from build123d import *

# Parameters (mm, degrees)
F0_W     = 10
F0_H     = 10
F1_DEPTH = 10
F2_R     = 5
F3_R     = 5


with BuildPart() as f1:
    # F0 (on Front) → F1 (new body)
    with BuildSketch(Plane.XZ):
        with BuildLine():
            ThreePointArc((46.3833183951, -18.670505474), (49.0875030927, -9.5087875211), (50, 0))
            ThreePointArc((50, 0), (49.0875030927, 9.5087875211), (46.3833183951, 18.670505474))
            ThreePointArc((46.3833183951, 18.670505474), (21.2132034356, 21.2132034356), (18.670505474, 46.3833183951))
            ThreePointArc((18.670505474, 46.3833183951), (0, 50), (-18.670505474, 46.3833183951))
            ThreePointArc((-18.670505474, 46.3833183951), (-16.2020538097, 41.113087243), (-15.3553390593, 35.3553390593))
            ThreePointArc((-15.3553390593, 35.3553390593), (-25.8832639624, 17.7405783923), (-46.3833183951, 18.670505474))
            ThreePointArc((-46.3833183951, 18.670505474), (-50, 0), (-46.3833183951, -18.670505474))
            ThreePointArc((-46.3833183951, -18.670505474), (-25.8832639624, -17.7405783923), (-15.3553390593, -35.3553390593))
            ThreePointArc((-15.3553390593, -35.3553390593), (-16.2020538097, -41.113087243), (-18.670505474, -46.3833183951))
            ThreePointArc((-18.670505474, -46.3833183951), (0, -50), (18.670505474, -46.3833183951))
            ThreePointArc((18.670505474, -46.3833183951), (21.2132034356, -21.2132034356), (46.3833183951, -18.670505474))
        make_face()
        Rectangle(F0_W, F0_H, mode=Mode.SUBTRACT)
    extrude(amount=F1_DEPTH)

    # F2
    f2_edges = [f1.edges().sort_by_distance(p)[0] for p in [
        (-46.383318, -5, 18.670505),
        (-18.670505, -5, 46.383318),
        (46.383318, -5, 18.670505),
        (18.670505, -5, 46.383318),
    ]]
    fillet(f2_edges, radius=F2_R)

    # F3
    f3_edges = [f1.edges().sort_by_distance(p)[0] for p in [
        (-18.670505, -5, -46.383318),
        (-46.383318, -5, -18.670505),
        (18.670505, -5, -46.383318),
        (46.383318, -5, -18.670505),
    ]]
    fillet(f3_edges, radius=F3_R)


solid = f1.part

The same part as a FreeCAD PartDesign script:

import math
import FreeCAD as App
import Part
import Sketcher

V = App.Vector


def edges_at(feature, points):
    """Names of the edges that pass closest to the given points."""
    edges = feature.Shape.Edges
    near = lambda p: min(range(len(edges)), key=lambda i: edges[i].distToShape(Part.Vertex(*p))[0])
    return sorted({f"Edge{near(p) + 1}" for p in points})

doc = App.newDocument("Part")
body = doc.addObject("PartDesign::Body", "Body")

sketch1 = body.newObject("Sketcher::SketchObject", "Sketch")
sketch1.AttachmentSupport = (doc.getObject("XZ_Plane"), [""])
sketch1.MapMode = "FlatFace"
sketch1.addGeometry(Part.ArcOfCircle(Part.Circle(V(0, 0, 0), V(0, 0, 1), 50), math.radians(-21.926082), math.radians(0)), False)
sketch1.addGeometry(Part.ArcOfCircle(Part.Circle(V(0, 0, 0), V(0, 0, 1), 50), math.radians(0), math.radians(21.926082)), False)
sketch1.addGeometry(Part.ArcOfCircle(Part.Circle(V(35.355339, 35.355339, 0), V(0, 0, 1), 20), math.radians(146.536959), math.radians(303.463041)), False)
sketch1.addGeometry(Part.ArcOfCircle(Part.Circle(V(0, 0, 0), V(0, 0, 1), 50), math.radians(68.073918), math.radians(111.926082)), False)
sketch1.addGeometry(Part.ArcOfCircle(Part.Circle(V(-35.355339, 35.355339, 0), V(0, 0, 1), 20), math.radians(0), math.radians(33.463041)), False)
sketch1.addGeometry(Part.ArcOfCircle(Part.Circle(V(-35.355339, 35.355339, 0), V(0, 0, 1), 20), math.radians(-123.463041), math.radians(0)), False)
sketch1.addGeometry(Part.ArcOfCircle(Part.Circle(V(0, 0, 0), V(0, 0, 1), 50), math.radians(158.073918), math.radians(201.926082)), False)
sketch1.addGeometry(Part.ArcOfCircle(Part.Circle(V(-35.355339, -35.355339, 0), V(0, 0, 1), 20), math.radians(0), math.radians(123.463041)), False)
sketch1.addGeometry(Part.ArcOfCircle(Part.Circle(V(-35.355339, -35.355339, 0), V(0, 0, 1), 20), math.radians(-33.463041), math.radians(0)), False)
sketch1.addGeometry(Part.ArcOfCircle(Part.Circle(V(0, 0, 0), V(0, 0, 1), 50), math.radians(-111.926082), math.radians(-68.073918)), False)
sketch1.addGeometry(Part.ArcOfCircle(Part.Circle(V(35.355339, -35.355339, 0), V(0, 0, 1), 20), math.radians(56.536959), math.radians(213.463041)), False)
sketch1.addGeometry(Part.LineSegment(V(5, -5, 0), V(-5, -5, 0)), False)
sketch1.addGeometry(Part.LineSegment(V(-5, -5, 0), V(-5, 5, 0)), False)
sketch1.addGeometry(Part.LineSegment(V(-5, 5, 0), V(5, 5, 0)), False)
sketch1.addGeometry(Part.LineSegment(V(5, 5, 0), V(5, -5, 0)), False)
sketch1.addConstraint(Sketcher.Constraint("Tangent", 0, 2, 1, 1))
sketch1.addConstraint(Sketcher.Constraint("Coincident", 1, 2, 2, 2))
sketch1.addConstraint(Sketcher.Constraint("Coincident", 2, 1, 3, 1))
sketch1.addConstraint(Sketcher.Constraint("Coincident", 3, 2, 4, 2))
sketch1.addConstraint(Sketcher.Constraint("Tangent", 4, 1, 5, 2))
sketch1.addConstraint(Sketcher.Constraint("Coincident", 5, 1, 6, 1))
sketch1.addConstraint(Sketcher.Constraint("Coincident", 6, 2, 7, 2))
sketch1.addConstraint(Sketcher.Constraint("Tangent", 7, 1, 8, 2))
sketch1.addConstraint(Sketcher.Constraint("Coincident", 8, 1, 9, 1))
sketch1.addConstraint(Sketcher.Constraint("Coincident", 9, 2, 10, 2))
sketch1.addConstraint(Sketcher.Constraint("Coincident", 10, 1, 0, 1))
sketch1.addConstraint(Sketcher.Constraint("Coincident", 11, 2, 12, 1))
sketch1.addConstraint(Sketcher.Constraint("Coincident", 12, 2, 13, 1))
sketch1.addConstraint(Sketcher.Constraint("Coincident", 13, 2, 14, 1))
sketch1.addConstraint(Sketcher.Constraint("Coincident", 14, 2, 11, 1))
sketch1.addConstraint(Sketcher.Constraint("Horizontal", 11))
sketch1.addConstraint(Sketcher.Constraint("Vertical", 12))
sketch1.addConstraint(Sketcher.Constraint("Horizontal", 13))
sketch1.addConstraint(Sketcher.Constraint("Vertical", 14))
sketch1.addConstraint(Sketcher.Constraint("Coincident", 0, 3, -1, 1))
sketch1.addConstraint(Sketcher.Constraint("Coincident", 3, 3, -1, 1))
sketch1.addConstraint(Sketcher.Constraint("Coincident", 6, 3, -1, 1))
sketch1.addConstraint(Sketcher.Constraint("Coincident", 9, 3, -1, 1))
sketch1.addConstraint(Sketcher.Constraint("Equal", 0, 1))
sketch1.addConstraint(Sketcher.Constraint("Equal", 1, 3))
sketch1.addConstraint(Sketcher.Constraint("Equal", 2, 4))
sketch1.addConstraint(Sketcher.Constraint("Equal", 4, 5))
sketch1.addConstraint(Sketcher.Constraint("Equal", 3, 6))
sketch1.addConstraint(Sketcher.Constraint("Equal", 5, 7))
sketch1.addConstraint(Sketcher.Constraint("Equal", 7, 8))
sketch1.addConstraint(Sketcher.Constraint("Equal", 6, 9))
sketch1.addConstraint(Sketcher.Constraint("Equal", 8, 10))
sketch1.addConstraint(Sketcher.Constraint("Symmetric", 2, 3, 7, 3, -1, 1))
sketch1.addConstraint(Sketcher.Constraint("Symmetric", 4, 3, 10, 3, -1, 1))
sketch1.addConstraint(Sketcher.Constraint("Symmetric", 11, 2, 13, 2, -1, 1))
sketch1.addConstraint(Sketcher.Constraint("Symmetric", 2, 3, 4, 3, -2))
sketch1.addConstraint(Sketcher.Constraint("PointOnObject", 0, 2, -1))
sketch1.addConstraint(Sketcher.Constraint("Horizontal", 5, 3, 4, 1))
sketch1.addConstraint(Sketcher.Constraint("Horizontal", 10, 3, 7, 1))
sketch1.addConstraint(Sketcher.Constraint("Equal", 13, 12))
sketch1.addConstraint(Sketcher.Constraint("Radius", 0, 50.0))
sketch1.addConstraint(Sketcher.Constraint("Radius", 2, 20.0))
sketch1.addConstraint(Sketcher.Constraint("DistanceX", 11, 2, 11, 1, 10.0))
sketch1.addConstraint(Sketcher.Constraint("DistanceX", -1, 1, 2, 3, 35.355339))
sketch1.addConstraint(Sketcher.Constraint("DistanceY", -1, 1, 2, 3, 35.355339))
pad1 = body.newObject("PartDesign::Pad", "Pad")
pad1.Profile = sketch1
pad1.Length = 10
doc.recompute()

fillet = body.newObject("PartDesign::Fillet", "Fillet")
fillet.Base = (pad1, edges_at(pad1, [
    (-46.383, -5, 18.671),
    (-18.671, -5, 46.383),
    (46.383, -5, 18.671),
    (18.671, -5, 46.383),
]))
fillet.Radius = 5
doc.recompute()

fillet2 = body.newObject("PartDesign::Fillet", "Fillet001")
fillet2.Base = (fillet, edges_at(fillet, [
    (-18.671, -5, -46.383),
    (-46.383, -5, -18.671),
    (18.671, -5, -46.383),
    (46.383, -5, -18.671),
]))
fillet2.Radius = 5

doc.recompute()
